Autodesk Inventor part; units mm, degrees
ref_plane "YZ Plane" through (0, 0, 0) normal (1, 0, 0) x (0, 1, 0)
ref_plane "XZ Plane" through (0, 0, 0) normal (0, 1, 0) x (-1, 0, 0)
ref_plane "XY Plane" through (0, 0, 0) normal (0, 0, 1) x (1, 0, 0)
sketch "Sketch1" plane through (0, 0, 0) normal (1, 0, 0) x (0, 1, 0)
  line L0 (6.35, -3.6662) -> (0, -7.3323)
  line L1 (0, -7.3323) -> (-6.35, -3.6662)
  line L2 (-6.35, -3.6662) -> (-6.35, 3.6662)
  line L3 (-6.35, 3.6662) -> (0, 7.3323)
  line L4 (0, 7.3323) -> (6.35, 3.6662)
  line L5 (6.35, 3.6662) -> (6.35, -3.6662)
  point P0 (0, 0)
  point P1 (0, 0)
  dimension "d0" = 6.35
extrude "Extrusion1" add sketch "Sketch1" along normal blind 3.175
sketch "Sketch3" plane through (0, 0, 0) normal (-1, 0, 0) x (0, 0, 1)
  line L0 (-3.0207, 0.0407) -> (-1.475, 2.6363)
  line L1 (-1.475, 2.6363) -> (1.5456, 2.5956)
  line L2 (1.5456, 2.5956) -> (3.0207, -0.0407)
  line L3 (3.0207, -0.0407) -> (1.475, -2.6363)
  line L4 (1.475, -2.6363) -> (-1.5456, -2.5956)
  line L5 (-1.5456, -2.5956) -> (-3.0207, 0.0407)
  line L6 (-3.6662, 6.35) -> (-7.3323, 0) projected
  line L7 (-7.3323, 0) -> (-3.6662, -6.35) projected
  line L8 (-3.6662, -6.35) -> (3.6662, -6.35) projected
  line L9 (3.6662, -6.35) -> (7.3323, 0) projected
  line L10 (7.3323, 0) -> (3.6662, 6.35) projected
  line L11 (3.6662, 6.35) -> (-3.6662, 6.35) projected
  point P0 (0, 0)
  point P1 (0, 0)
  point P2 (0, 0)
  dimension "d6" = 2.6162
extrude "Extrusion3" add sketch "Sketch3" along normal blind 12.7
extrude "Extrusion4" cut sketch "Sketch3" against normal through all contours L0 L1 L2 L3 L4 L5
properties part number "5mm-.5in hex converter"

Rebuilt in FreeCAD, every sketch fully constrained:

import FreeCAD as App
import Part
import Sketcher

V = App.Vector
Q = App.Units.Quantity

doc = App.newDocument("Part")
body = doc.addObject("PartDesign::Body", "Body")

# Sketch on YZ plane
sketch1 = doc.addObject("Sketcher::SketchObject", "Sketch")
body.addObject(sketch1)
sketch1.AttachmentSupport = (doc.YZ_Plane, [""])
sketch1.MapMode = "FlatFace"
sketch1.addGeometry([
    Part.LineSegment(V(0, -7, 0), V(6, -4, 0)),  # 0
    Part.LineSegment(V(6, -4, 0), V(6, 4, 0)),  # 1
    Part.LineSegment(V(6, 4, 0), V(0, 7, 0)),  # 2
    Part.LineSegment(V(0, 7, 0), V(-6, 4, 0)),  # 3
    Part.LineSegment(V(-6, 4, 0), V(-6, -4, 0)),  # 4
    Part.LineSegment(V(-6, -4, 0), V(0, -7, 0)),  # 5
], False)
sketch1.addConstraint([
    Sketcher.Constraint("Coincident", 0, 2, 1, 1),
    Sketcher.Constraint("Coincident", 1, 2, 2, 1),
    Sketcher.Constraint("Coincident", 2, 2, 3, 1),
    Sketcher.Constraint("Coincident", 3, 2, 4, 1),
    Sketcher.Constraint("Coincident", 4, 2, 5, 1),
    Sketcher.Constraint("Coincident", 5, 2, 0, 1),
    Sketcher.Constraint("Vertical", 1),
    Sketcher.Constraint("Vertical", 4),
    Sketcher.Constraint("Symmetric", 0, 2, 3, 2, -1, 1),
    Sketcher.Constraint("Symmetric", 2, 2, 5, 2, -1, 1),
    Sketcher.Constraint("PointOnObject", 2, 2, -2),
    Sketcher.Constraint("Parallel", 2, 5),
    Sketcher.Constraint("Horizontal", 1, 2, 3, 2),
    Sketcher.Constraint("DistanceX", -1, 1, 0, 2, Q("0.25 in")),
    Sketcher.Constraint("Angle", 0, Q("29.9995 deg")),
    Sketcher.Constraint("DistanceY", 0, 2, 2, 2, Q("0.433 in")),
])
pad1 = doc.addObject("PartDesign::Pad", "Pad")
body.addObject(pad1)
pad1.Profile = sketch1
pad1.Length = Q("0.125 in")

# Sketch on YZ plane
sketch2 = doc.addObject("Sketcher::SketchObject", "Sketch001")
body.addObject(sketch2)
sketch2.AttachmentSupport = (doc.YZ_Plane, [""])
sketch2.MapMode = "FlatFace"
sketch2.addGeometry([
    Part.LineSegment(V(6.3, 3.7, 0), V(6.3, -3.7, 0)),  # 0
    Part.LineSegment(V(6.3, -3.7, 0), V(0, -7.3, 0)),  # 1
    Part.LineSegment(V(0, -7.3, 0), V(-6.3, -3.7, 0)),  # 2
    Part.LineSegment(V(-6.3, -3.7, 0), V(-6.3, 3.7, 0)),  # 3
    Part.LineSegment(V(-6.3, 3.7, 0), V(0, 7.3, 0)),  # 4
    Part.LineSegment(V(0, 7.3, 0), V(6.3, 3.7, 0)),  # 5
    Part.LineSegment(V(-2.6, -1.5, 0), V(0, -3, 0)),  # 6
    Part.LineSegment(V(0, -3, 0), V(2.6, -1.5, 0)),  # 7
    Part.LineSegment(V(2.6, -1.5, 0), V(2.6, 1.5, 0)),  # 8
    Part.LineSegment(V(2.6, 1.5, 0), V(0, 3, 0)),  # 9
    Part.LineSegment(V(0, 3, 0), V(-2.6, 1.5, 0)),  # 10
    Part.LineSegment(V(-2.6, 1.5, 0), V(-2.6, -1.5, 0)),  # 11
], False)
sketch2.addConstraint([
    Sketcher.Constraint("Coincident", 0, 2, 1, 1),
    Sketcher.Constraint("Coincident", 1, 2, 2, 1),
    Sketcher.Constraint("Coincident", 2, 2, 3, 1),
    Sketcher.Constraint("Coincident", 3, 2, 4, 1),
    Sketcher.Constraint("Coincident", 4, 2, 5, 1),
    Sketcher.Constraint("Coincident", 5, 2, 0, 1),
    Sketcher.Constraint("Coincident", 6, 2, 7, 1),
    Sketcher.Constraint("Coincident", 7, 2, 8, 1),
    Sketcher.Constraint("Coincident", 8, 2, 9, 1),
    Sketcher.Constraint("Coincident", 9, 2, 10, 1),
    Sketcher.Constraint("Coincident", 10, 2, 11, 1),
    Sketcher.Constraint("Coincident", 11, 2, 6, 1),
    Sketcher.Constraint("Vertical", 0),
    Sketcher.Constraint("Vertical", 3),
    Sketcher.Constraint("Symmetric", 0, 2, 3, 2, -1, 1),
    Sketcher.Constraint("Symmetric", 1, 2, 4, 2, -1, 1),
    Sketcher.Constraint("Symmetric", 6, 2, 9, 2, -1, 1),
    Sketcher.Constraint("Symmetric", 7, 2, 10, 2, -1, 1),
    Sketcher.Constraint("Symmetric", 8, 2, 11, 2, -1, 1),
    Sketcher.Constraint("PointOnObject", 1, 2, -2),
    Sketcher.Constraint("Parallel", 2, 5),
    Sketcher.Constraint("Horizontal", 0, 2, 2, 2),
    Sketcher.Constraint("Equal", 6, 7),
    Sketcher.Constraint("Equal", 7, 8),
    Sketcher.Constraint("Angle", 1, Q("-150.0005 deg")),
    Sketcher.Constraint("DistanceX", 2, 2, 0, 2, Q("0.5 in")),
    Sketcher.Constraint("DistanceY", 1, 2, 3, 2, Q("0.433 in")),
    Sketcher.Constraint("DistanceY", 7, 2, 9, 2, Q("0.177 in")),
    Sketcher.Constraint("DistanceX", -1, 1, 6, 2, Q("0.0016 in")),
    Sketcher.Constraint("DistanceX", -1, 1, 7, 2, Q("0.1038 in")),
    Sketcher.Constraint("DistanceX", -1, 1, 8, 2, Q("0.1022 in")),
])
pad2 = doc.addObject("PartDesign::Pad", "Pad001")
body.addObject(pad2)
pad2.Profile = sketch2
pad2.Length = Q("0.5 in")
pad2.Reversed = True

# Sketch on YZ plane
sketch3 = doc.addObject("Sketcher::SketchObject", "Sketch002")
body.addObject(sketch3)
sketch3.AttachmentSupport = (doc.YZ_Plane, [""])
sketch3.MapMode = "FlatFace"
sketch3.addGeometry([
    Part.LineSegment(V(2.6, -1.5, 0), V(0, -3, 0)),  # 0
    Part.LineSegment(V(0, -3, 0), V(-2.6, -1.5, 0)),  # 1
    Part.LineSegment(V(-2.6, -1.5, 0), V(-2.6, 1.5, 0)),  # 2
    Part.LineSegment(V(-2.6, 1.5, 0), V(0, 3, 0)),  # 3
    Part.LineSegment(V(0, 3, 0), V(2.6, 1.5, 0)),  # 4
    Part.LineSegment(V(2.6, 1.5, 0), V(2.6, -1.5, 0)),  # 5
], False)
sketch3.addConstraint([
    Sketcher.Constraint("Coincident", 0, 2, 1, 1),
    Sketcher.Constraint("Coincident", 1, 2, 2, 1),
    Sketcher.Constraint("Coincident", 2, 2, 3, 1),
    Sketcher.Constraint("Coincident", 3, 2, 4, 1),
    Sketcher.Constraint("Coincident", 4, 2, 5, 1),
    Sketcher.Constraint("Coincident", 5, 2, 0, 1),
    Sketcher.Constraint("Symmetric", 0, 2, 3, 2, -1, 1),
    Sketcher.Constraint("Symmetric", 1, 2, 4, 2, -1, 1),
    Sketcher.Constraint("Symmetric", 2, 2, 5, 2, -1, 1),
    Sketcher.Constraint("Equal", 0, 1),
    Sketcher.Constraint("Equal", 1, 2),
    Sketcher.Constraint("DistanceY", 0, 2, 2, 2, Q("0.177 in")),
    Sketcher.Constraint("DistanceX", -1, 1, 0, 2, Q("0.0016 in")),
    Sketcher.Constraint("DistanceX", 1, 2, -1, 1, Q("0.1022 in")),
    Sketcher.Constraint("DistanceX", 2, 2, -1, 1, Q("0.1038 in")),
])
pocket1 = doc.addObject("PartDesign::Pocket", "Pocket")
body.addObject(pocket1)
pocket1.Profile = sketch3
pocket1.Type = "ThroughAll"
pocket1.Reversed = True

doc.recompute()
